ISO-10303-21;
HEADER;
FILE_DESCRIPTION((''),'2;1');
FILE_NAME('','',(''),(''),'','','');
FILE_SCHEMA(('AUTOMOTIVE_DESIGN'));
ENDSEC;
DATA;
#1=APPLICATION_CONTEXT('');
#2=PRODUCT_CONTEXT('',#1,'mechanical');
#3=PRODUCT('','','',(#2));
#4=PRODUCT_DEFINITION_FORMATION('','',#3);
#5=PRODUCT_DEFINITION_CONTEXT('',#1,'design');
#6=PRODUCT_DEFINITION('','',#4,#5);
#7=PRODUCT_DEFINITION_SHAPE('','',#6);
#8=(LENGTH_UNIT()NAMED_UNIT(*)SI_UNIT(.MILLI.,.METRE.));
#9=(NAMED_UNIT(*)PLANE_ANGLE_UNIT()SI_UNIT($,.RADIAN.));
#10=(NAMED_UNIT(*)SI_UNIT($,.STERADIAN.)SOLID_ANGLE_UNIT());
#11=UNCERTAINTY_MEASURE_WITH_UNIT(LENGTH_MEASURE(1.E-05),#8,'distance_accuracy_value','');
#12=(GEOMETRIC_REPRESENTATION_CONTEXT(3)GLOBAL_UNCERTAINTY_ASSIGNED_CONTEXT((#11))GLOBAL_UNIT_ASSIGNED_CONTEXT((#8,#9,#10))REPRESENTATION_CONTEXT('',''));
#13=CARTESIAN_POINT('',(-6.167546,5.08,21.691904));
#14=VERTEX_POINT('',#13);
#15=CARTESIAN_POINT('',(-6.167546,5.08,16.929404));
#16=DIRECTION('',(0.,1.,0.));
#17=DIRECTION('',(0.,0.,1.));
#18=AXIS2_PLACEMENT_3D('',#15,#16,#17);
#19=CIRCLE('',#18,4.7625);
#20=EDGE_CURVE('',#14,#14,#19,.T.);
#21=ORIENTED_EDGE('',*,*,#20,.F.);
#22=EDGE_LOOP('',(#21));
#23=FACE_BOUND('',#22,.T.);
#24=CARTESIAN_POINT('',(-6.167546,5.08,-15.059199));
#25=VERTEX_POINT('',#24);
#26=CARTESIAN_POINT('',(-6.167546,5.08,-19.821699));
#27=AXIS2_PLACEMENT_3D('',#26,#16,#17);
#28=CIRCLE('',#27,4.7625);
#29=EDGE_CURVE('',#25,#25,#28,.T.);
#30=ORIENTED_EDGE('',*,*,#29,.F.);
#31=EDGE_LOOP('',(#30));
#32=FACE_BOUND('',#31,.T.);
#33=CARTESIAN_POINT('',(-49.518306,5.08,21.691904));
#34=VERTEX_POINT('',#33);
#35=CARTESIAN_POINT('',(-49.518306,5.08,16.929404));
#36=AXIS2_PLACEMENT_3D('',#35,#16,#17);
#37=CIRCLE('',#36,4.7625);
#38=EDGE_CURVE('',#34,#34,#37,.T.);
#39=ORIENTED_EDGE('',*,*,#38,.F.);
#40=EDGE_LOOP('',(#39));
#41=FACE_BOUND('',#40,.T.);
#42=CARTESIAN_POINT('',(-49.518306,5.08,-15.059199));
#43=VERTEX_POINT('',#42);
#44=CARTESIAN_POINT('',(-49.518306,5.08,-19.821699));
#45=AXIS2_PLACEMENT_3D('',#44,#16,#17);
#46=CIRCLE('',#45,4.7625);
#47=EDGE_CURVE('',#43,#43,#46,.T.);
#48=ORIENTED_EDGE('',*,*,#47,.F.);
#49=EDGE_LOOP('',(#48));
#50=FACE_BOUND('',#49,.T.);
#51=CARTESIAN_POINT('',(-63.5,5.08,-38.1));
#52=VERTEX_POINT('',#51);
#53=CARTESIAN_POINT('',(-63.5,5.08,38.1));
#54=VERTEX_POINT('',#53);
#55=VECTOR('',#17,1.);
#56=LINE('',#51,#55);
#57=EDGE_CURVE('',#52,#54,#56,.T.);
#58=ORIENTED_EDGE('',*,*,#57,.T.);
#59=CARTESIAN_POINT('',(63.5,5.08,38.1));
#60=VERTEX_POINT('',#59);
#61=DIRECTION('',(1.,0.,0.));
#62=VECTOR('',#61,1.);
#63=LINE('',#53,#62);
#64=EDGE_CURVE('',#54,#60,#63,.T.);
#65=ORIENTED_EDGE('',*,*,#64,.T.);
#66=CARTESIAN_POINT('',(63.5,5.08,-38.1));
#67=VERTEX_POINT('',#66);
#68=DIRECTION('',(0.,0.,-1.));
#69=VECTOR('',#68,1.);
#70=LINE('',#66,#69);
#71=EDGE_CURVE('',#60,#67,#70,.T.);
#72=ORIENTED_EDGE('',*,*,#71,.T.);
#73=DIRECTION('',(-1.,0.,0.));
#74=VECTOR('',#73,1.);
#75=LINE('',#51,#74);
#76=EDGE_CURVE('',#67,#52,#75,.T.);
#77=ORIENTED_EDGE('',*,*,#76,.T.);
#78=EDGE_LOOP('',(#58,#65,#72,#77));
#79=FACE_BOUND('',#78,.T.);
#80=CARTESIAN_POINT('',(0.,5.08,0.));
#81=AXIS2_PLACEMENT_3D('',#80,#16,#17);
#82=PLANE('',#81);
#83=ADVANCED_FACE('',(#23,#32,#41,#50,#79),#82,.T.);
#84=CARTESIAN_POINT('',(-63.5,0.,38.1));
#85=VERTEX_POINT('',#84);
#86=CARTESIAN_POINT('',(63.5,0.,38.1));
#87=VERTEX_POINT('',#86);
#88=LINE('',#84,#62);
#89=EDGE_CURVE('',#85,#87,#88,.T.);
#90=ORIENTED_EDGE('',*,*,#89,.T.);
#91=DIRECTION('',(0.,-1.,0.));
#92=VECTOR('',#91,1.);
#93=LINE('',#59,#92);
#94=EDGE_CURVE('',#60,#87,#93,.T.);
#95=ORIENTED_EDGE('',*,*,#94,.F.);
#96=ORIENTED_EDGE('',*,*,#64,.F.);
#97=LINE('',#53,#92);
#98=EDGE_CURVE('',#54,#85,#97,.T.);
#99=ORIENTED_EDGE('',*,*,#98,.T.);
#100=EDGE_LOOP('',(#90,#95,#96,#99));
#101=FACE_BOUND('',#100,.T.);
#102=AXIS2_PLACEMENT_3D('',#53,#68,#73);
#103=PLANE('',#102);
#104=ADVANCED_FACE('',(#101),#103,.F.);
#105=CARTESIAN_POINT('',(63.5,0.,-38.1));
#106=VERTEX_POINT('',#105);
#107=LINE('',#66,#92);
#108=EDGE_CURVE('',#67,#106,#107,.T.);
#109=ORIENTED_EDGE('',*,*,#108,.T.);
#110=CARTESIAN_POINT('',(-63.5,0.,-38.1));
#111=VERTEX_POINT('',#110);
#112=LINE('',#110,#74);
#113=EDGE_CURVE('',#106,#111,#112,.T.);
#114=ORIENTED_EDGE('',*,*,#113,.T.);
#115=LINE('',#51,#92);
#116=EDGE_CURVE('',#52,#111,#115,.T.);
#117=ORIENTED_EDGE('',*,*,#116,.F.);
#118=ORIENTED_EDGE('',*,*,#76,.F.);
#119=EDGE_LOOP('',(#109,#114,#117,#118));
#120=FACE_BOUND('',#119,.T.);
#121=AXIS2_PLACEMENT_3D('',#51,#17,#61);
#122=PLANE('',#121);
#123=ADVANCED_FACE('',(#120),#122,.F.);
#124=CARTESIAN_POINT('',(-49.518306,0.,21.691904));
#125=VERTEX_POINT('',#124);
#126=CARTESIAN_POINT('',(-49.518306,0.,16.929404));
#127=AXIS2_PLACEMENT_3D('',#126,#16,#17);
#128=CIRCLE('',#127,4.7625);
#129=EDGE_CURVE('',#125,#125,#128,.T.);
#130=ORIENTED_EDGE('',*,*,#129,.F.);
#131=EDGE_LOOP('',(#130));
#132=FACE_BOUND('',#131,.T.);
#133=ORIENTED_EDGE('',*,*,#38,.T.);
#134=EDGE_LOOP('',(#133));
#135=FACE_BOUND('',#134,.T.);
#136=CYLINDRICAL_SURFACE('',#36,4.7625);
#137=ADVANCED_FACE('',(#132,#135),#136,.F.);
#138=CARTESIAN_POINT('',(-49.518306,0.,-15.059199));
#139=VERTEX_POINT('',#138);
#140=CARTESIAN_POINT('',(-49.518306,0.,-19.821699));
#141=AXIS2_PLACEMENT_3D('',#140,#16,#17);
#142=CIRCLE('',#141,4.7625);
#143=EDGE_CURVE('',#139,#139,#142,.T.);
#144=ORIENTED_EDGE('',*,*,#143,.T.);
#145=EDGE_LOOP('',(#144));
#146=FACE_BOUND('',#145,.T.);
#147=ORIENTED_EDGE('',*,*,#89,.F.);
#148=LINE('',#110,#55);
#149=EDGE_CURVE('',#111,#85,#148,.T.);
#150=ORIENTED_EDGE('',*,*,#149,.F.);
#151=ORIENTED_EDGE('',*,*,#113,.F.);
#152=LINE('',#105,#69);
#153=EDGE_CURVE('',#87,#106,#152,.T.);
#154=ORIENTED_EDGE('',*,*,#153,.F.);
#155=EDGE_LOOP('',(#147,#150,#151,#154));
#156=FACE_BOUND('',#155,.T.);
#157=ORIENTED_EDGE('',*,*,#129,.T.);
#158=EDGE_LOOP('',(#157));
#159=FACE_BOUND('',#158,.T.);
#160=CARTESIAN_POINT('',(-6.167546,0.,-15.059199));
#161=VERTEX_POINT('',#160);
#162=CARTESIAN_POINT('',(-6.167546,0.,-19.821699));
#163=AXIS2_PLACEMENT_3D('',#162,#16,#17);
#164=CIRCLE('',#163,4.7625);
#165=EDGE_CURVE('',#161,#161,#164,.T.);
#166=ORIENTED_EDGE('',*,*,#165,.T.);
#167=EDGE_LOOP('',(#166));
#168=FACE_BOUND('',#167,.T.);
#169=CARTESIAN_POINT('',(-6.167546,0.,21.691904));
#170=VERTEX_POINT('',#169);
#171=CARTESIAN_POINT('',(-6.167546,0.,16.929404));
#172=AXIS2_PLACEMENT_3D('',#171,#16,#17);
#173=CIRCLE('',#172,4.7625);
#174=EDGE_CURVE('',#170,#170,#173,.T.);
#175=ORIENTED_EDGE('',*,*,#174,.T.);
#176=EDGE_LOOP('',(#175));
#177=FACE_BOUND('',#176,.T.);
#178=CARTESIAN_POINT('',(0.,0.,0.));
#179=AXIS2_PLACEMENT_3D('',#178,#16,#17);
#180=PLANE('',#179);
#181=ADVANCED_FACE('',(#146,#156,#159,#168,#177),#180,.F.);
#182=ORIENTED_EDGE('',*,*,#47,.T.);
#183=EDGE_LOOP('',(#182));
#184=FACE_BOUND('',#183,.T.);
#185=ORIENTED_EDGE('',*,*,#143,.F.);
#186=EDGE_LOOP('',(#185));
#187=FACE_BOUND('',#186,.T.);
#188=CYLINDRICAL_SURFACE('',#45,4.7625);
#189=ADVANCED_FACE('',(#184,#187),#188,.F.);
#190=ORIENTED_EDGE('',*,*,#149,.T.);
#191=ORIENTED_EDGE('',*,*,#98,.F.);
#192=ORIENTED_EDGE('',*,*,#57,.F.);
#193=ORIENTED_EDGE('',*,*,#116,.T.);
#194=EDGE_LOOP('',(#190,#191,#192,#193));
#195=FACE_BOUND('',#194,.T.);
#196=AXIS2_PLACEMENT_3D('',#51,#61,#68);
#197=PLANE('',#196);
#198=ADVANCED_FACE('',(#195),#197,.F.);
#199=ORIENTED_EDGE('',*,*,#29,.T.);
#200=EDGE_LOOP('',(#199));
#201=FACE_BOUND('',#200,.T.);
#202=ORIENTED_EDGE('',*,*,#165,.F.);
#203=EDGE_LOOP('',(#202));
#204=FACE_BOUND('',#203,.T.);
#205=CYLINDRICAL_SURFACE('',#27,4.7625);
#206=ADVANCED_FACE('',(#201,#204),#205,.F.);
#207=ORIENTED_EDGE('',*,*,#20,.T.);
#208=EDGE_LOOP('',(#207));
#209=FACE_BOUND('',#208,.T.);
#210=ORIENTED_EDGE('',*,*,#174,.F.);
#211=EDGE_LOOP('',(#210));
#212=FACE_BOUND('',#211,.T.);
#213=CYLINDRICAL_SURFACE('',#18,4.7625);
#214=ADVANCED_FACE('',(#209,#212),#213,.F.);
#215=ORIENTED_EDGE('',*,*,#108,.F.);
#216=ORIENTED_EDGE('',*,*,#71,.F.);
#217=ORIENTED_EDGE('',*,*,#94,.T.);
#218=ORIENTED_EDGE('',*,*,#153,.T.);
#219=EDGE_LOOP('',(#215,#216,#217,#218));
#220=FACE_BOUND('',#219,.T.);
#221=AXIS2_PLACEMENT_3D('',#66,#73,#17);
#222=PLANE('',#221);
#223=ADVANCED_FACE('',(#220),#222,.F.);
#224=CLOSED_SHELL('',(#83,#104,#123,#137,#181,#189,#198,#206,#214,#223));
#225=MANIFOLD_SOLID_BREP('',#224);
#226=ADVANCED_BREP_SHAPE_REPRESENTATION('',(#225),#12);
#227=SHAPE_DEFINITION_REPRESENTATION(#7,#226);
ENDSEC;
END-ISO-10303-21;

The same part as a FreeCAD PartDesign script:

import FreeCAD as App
import Part
import Sketcher
Q = App.Units.Quantity


def add_polygon(sketch, points):
    """Adds a closed chain of lines whose ends are joined by coincident constraints."""
    first, n = sketch.GeometryCount, len(points)
    for a, b in zip(points, points[1:] + points[:1]):
        sketch.addGeometry(Part.LineSegment(App.Vector(*a, 0), App.Vector(*b, 0)), False)
    for i in range(n):
        sketch.addConstraint(Sketcher.Constraint("Coincident", first + i, 2, first + (i + 1) % n, 1))

doc = App.newDocument("Part")
body = doc.addObject("PartDesign::Body", "Body")

sketch1 = body.newObject("Sketcher::SketchObject", "Sketch")
sketch1.AttachmentSupport = (doc.getObject("XZ_Plane"), [""])
sketch1.MapMode = "FlatFace"
add_polygon(sketch1, [(-63.5, -38.1), (-63.5, 38.1), (63.5, 38.1), (63.5, -38.1)])
sketch1.addConstraint(Sketcher.Constraint("Vertical", 0))
sketch1.addConstraint(Sketcher.Constraint("Horizontal", 1))
sketch1.addConstraint(Sketcher.Constraint("Vertical", 2))
sketch1.addConstraint(Sketcher.Constraint("Horizontal", 3))
sketch1.addConstraint(Sketcher.Constraint("Symmetric", 0, 2, 2, 2, -1, 1))
sketch1.addConstraint(Sketcher.Constraint("DistanceX", 1, 1, 1, 2, Q("5 in")))
sketch1.addConstraint(Sketcher.Constraint("DistanceY", 0, 1, 0, 2, Q("3 in")))
pad1 = body.newObject("PartDesign::Pad", "Pad")
pad1.Profile = sketch1
pad1.Length = Q("0.2 in")
pad1.Reversed = True

sketch2 = body.newObject("Sketcher::SketchObject", "Sketch001")
sketch2.AttachmentSupport = (doc.getObject("XZ_Plane"), [""])
sketch2.MapMode = "FlatFace"
sketch2.AttachmentOffset = App.Placement(App.Vector(0, 0, -0.2 * 25.4), App.Rotation())
sketch2.addGeometry(Part.Circle(App.Vector(-49.518306, -19.821699, 0), App.Vector(0, 0, 1), 4.7625), False)
sketch2.addGeometry(Part.Circle(App.Vector(-49.518306, 16.929404, 0), App.Vector(0, 0, 1), 4.7625), False)
sketch2.addGeometry(Part.Circle(App.Vector(-6.167546, 16.929404, 0), App.Vector(0, 0, 1), 4.7625), False)
sketch2.addGeometry(Part.Circle(App.Vector(-6.167546, -19.821699, 0), App.Vector(0, 0, 1), 4.7625), False)
sketch2.addConstraint(Sketcher.Constraint("Equal", 0, 1))
sketch2.addConstraint(Sketcher.Constraint("Equal", 1, 2))
sketch2.addConstraint(Sketcher.Constraint("Equal", 2, 3))
sketch2.addConstraint(Sketcher.Constraint("Horizontal", 1, 3, 2, 3))
sketch2.addConstraint(Sketcher.Constraint("Horizontal", 0, 3, 3, 3))
sketch2.addConstraint(Sketcher.Constraint("Vertical", 0, 3, 1, 3))
sketch2.addConstraint(Sketcher.Constraint("Vertical", 2, 3, 3, 3))
sketch2.addConstraint(Sketcher.Constraint("Diameter", 0, Q("0.375 in")))
sketch2.addConstraint(Sketcher.Constraint("DistanceY", 0, 3, -1, 1, 19.821699))
sketch2.addConstraint(Sketcher.Constraint("DistanceX", 1, 3, 2, 3, 43.35076))
sketch2.addConstraint(Sketcher.Constraint("DistanceX", 0, 3, -1, 1, 49.518306))
sketch2.addConstraint(Sketcher.Constraint("DistanceY", -1, 1, 1, 3, 16.929404))
doc.recompute()
hole = body.newObject("PartDesign::Hole", "Hole")
hole.Profile = sketch2
hole.ThreadType = "None"
hole.Diameter = Q("0.375 in")
hole.DepthType = "ThroughAll"
hole.Reversed = True

doc.recompute()
